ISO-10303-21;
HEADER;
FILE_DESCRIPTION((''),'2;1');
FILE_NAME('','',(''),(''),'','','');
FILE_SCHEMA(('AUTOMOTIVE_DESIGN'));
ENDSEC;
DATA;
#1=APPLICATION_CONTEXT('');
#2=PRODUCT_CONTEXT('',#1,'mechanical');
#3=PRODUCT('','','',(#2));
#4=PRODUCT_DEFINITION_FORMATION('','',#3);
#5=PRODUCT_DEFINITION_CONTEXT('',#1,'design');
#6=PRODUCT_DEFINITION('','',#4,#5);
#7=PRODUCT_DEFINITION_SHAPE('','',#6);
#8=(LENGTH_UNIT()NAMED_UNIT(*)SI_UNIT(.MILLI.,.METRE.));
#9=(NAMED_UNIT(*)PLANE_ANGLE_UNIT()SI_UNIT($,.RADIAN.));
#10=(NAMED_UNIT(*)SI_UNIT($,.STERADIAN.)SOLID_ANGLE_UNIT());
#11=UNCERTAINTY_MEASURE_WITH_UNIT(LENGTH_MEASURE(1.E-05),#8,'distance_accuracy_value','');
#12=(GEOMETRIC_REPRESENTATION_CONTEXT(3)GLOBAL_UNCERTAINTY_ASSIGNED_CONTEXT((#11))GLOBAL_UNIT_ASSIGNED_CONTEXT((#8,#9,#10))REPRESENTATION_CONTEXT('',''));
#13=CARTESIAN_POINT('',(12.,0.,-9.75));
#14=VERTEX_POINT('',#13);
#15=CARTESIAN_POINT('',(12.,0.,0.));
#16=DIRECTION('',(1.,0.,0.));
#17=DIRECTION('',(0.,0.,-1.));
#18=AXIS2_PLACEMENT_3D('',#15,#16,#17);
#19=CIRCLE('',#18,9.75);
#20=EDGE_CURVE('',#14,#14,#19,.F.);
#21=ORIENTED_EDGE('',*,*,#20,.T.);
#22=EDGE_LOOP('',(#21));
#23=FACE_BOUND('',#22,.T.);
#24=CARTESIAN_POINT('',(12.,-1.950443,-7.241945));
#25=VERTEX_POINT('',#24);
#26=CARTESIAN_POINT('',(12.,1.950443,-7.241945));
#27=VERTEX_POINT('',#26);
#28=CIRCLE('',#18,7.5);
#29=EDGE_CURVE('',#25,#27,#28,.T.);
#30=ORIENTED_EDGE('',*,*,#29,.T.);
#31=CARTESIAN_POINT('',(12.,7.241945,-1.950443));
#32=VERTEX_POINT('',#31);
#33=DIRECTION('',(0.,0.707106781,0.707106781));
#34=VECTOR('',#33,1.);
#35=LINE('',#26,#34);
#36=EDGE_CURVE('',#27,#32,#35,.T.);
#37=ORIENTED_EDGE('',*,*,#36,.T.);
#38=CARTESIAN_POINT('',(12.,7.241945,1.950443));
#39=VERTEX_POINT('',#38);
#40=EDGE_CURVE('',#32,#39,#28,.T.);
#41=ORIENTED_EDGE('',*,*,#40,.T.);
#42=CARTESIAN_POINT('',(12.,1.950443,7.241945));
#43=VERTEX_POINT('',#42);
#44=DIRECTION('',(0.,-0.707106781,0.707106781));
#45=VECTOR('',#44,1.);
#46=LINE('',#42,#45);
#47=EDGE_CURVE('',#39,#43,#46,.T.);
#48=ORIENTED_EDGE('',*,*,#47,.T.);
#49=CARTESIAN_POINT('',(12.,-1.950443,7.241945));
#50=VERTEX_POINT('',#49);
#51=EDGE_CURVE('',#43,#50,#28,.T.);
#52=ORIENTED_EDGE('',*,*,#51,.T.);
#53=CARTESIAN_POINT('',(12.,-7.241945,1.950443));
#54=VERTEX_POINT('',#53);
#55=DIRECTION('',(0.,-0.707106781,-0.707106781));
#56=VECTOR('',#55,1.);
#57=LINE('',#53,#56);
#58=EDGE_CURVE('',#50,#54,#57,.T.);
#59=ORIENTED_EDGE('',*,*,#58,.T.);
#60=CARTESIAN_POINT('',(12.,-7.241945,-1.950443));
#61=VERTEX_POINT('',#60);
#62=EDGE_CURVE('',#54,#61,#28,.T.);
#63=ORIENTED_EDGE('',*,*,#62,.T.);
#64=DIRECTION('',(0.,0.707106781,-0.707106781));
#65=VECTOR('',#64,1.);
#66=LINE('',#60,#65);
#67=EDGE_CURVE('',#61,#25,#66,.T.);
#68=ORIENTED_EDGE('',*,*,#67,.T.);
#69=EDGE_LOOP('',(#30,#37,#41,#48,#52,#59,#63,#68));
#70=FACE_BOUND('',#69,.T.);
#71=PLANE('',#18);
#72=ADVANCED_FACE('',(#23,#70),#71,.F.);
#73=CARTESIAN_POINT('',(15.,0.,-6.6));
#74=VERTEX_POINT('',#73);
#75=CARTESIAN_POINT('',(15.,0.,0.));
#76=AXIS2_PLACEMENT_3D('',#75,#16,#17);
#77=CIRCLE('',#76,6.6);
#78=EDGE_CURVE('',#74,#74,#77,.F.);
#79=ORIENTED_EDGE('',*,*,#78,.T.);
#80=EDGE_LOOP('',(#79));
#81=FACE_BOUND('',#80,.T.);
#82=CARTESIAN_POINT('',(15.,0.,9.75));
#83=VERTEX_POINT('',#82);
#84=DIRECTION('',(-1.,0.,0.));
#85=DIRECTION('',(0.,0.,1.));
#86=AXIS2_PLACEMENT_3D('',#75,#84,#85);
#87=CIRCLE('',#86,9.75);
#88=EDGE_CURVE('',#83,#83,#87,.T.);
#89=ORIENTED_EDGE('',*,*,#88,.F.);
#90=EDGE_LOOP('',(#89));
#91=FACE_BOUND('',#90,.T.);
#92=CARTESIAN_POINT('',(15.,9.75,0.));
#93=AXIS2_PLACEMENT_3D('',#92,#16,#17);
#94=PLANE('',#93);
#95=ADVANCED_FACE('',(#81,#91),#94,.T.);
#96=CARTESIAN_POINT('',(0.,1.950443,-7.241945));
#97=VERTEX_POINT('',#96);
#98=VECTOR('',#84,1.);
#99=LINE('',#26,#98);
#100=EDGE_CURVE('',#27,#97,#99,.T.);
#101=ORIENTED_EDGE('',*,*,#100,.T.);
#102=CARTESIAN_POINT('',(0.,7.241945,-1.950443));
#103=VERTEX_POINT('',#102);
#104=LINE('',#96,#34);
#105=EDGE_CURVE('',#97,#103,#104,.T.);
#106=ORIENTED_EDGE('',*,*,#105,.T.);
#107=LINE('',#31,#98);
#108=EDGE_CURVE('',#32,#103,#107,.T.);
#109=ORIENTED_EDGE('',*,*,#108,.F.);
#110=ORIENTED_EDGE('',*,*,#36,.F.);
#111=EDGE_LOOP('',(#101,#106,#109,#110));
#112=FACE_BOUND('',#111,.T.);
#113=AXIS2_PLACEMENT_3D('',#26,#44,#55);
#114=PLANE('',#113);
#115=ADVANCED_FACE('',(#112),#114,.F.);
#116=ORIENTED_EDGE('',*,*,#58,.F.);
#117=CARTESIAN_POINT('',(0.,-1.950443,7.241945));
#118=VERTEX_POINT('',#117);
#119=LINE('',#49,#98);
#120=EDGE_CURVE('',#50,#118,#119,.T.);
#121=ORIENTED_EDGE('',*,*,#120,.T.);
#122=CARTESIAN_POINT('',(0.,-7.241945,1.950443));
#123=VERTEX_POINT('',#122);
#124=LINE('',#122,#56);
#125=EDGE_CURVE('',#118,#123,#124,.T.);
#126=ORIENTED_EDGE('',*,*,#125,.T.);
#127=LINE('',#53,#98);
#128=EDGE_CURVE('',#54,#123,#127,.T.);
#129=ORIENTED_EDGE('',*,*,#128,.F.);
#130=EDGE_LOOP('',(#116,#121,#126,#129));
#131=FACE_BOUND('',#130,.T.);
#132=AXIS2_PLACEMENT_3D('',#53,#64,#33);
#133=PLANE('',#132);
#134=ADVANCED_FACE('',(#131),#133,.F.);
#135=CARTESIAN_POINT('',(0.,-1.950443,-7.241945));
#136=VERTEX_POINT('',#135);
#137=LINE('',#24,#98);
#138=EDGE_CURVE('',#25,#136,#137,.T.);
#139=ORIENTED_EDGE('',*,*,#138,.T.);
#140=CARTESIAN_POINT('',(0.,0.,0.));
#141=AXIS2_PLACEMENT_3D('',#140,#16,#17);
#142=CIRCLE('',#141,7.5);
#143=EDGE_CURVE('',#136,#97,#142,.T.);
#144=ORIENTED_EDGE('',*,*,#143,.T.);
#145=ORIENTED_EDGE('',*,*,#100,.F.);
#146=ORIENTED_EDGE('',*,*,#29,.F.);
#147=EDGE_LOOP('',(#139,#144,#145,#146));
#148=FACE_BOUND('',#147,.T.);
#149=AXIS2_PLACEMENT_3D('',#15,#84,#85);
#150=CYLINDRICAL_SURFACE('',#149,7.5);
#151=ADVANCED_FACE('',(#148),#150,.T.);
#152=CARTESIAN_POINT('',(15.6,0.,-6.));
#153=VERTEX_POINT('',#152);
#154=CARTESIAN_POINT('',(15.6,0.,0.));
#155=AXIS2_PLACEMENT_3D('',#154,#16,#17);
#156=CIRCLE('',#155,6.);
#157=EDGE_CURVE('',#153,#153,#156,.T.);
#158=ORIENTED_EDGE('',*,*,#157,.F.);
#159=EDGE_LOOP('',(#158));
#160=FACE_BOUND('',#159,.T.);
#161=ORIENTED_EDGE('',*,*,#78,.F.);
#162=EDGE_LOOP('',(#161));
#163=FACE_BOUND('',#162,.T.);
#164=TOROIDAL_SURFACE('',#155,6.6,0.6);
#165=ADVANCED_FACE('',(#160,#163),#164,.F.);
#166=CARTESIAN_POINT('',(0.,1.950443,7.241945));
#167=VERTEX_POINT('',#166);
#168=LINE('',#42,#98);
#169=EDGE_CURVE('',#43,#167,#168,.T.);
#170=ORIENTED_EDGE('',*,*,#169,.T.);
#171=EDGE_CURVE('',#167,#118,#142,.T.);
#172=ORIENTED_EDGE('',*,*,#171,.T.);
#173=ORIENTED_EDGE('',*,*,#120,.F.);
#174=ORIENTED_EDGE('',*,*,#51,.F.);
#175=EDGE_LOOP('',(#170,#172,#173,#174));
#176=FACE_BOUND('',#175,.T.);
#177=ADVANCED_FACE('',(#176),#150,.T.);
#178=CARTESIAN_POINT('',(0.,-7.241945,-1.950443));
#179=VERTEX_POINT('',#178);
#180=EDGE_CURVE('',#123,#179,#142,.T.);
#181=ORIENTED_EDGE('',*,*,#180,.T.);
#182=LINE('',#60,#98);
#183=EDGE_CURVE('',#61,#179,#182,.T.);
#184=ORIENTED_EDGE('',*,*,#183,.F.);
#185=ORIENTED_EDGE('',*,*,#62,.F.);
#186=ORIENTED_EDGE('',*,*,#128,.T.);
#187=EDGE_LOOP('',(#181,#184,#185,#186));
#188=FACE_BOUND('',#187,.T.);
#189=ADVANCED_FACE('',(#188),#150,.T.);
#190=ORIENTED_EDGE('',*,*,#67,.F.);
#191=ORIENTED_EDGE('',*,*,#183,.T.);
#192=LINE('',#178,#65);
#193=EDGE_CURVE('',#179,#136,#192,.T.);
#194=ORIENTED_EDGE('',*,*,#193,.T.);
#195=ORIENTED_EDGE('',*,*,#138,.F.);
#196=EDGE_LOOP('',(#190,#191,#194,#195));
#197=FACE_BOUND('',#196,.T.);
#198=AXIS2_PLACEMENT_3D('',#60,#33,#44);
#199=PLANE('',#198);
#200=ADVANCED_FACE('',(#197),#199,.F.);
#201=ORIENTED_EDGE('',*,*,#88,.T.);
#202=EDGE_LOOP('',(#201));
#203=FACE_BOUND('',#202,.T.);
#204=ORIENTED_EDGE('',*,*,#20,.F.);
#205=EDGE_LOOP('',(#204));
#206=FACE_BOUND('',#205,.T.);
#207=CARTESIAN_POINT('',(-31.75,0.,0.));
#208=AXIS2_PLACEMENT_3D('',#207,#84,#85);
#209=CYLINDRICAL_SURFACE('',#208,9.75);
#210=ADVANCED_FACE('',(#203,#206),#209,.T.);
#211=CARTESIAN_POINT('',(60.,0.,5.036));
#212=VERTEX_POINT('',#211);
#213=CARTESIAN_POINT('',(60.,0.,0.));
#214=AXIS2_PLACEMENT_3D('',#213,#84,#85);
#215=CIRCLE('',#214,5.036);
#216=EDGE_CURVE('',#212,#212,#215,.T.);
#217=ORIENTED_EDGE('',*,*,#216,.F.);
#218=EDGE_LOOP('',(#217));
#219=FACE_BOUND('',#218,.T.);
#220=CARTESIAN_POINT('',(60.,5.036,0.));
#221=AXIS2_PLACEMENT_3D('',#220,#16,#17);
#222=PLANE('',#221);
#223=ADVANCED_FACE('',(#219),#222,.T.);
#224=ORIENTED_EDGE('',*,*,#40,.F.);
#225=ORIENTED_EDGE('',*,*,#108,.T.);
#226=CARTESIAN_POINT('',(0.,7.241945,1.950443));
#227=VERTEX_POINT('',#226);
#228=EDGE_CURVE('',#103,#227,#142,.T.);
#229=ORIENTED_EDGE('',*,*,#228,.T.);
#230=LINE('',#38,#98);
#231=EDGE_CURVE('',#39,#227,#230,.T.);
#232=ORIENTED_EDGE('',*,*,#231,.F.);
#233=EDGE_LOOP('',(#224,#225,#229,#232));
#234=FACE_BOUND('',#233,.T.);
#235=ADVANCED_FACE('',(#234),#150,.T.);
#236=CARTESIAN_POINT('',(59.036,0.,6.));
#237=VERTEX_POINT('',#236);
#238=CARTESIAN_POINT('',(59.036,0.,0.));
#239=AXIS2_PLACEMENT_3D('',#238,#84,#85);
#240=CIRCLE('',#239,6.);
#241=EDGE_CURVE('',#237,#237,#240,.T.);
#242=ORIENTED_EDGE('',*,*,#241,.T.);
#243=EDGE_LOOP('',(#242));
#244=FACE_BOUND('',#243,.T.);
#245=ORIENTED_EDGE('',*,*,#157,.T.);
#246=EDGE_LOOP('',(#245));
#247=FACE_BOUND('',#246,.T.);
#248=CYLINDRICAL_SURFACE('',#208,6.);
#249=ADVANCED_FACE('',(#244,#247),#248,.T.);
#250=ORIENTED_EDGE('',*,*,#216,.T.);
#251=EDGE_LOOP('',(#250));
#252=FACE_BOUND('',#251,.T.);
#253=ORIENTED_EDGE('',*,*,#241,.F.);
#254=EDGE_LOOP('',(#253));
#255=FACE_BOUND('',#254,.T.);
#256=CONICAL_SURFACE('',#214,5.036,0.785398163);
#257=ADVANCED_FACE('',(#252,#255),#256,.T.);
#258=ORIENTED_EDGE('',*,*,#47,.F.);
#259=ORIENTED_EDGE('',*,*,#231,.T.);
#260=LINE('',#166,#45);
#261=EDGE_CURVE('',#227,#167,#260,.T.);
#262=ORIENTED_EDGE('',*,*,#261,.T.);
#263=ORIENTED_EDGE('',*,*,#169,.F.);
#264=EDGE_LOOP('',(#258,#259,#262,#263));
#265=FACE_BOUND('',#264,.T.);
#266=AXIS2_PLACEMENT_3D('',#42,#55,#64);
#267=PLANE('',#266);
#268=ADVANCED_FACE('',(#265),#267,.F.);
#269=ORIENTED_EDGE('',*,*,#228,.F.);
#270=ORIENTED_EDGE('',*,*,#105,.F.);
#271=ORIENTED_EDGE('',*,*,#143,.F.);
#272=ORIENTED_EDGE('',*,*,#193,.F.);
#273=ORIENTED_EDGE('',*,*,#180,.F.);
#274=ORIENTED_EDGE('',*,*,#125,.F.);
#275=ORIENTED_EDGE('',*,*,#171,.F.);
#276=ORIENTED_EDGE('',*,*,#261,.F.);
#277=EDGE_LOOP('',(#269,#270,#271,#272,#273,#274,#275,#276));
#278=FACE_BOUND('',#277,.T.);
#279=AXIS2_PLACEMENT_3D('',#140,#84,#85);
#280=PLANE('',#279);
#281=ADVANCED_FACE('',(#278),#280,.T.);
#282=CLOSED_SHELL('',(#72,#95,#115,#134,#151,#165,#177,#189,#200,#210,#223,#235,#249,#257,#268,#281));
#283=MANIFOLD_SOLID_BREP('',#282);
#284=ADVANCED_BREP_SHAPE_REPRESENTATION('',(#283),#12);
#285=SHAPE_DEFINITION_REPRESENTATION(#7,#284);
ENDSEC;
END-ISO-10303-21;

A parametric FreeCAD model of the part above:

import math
import FreeCAD as App
import Part
import Sketcher

V = App.Vector
Q = App.Units.Quantity


def edges_at(feature, points):
    """Names of the edges that pass closest to the given points."""
    edges = feature.Shape.Edges
    near = lambda p: min(range(len(edges)), key=lambda i: edges[i].distToShape(Part.Vertex(*p))[0])
    return sorted({f"Edge{near(p) + 1}" for p in points})

doc = App.newDocument("Part")
params = doc.addObject("Spreadsheet::Sheet", "Params")
for row, (alias, value) in enumerate([
    ("sketch1_width", "60 mm"),
    ("sketch1_width2", "15 mm"),
    ("sketch1_height", "9.75 mm"),
    ("revolution_angle", "360 deg"),
    ("fillet_radius", "0.6 mm"),
    ("fillet2_radius", "0.6 mm"),
    ("sketch2_radius", "7.5 mm"),
    ("pocket1_length", "12 mm"),
], start=1):
    params.set(f"A{row}", alias)
    params.set(f"B{row}", "=" + value)
    params.setAlias(f"B{row}", alias)

body = doc.addObject("PartDesign::Body", "Body")

sketch1 = body.newObject("Sketcher::SketchObject", "Sketch")
sketch1.AttachmentSupport = (doc.getObject("XY_Plane"), [""])
sketch1.MapMode = "FlatFace"
sketch1.addGeometry([
    Part.LineSegment(V(0, 9.75, 0), V(0, 0, 0)),
    Part.LineSegment(V(0, 0, 0), V(60, 0, 0)),
    Part.LineSegment(V(60, 0, 0), V(60, 5.036, 0)),
    Part.LineSegment(V(60, 5.036, 0), V(59.036, 6, 0)),
    Part.LineSegment(V(59.036, 6, 0), V(15, 6, 0)),
    Part.LineSegment(V(15, 6, 0), V(15, 9.75, 0)),
    Part.LineSegment(V(15, 9.75, 0), V(0, 9.75, 0)),
], False)
sketch1.addConstraint([
    Sketcher.Constraint("Coincident", 0, 2, 1, 1),
    Sketcher.Constraint("Coincident", 1, 2, 2, 1),
    Sketcher.Constraint("Coincident", 2, 2, 3, 1),
    Sketcher.Constraint("Coincident", 3, 2, 4, 1),
    Sketcher.Constraint("Coincident", 4, 2, 5, 1),
    Sketcher.Constraint("Coincident", 5, 2, 6, 1),
    Sketcher.Constraint("Coincident", 6, 2, 0, 1),
    Sketcher.Constraint("Vertical", 0),
    Sketcher.Constraint("Horizontal", 1),
    Sketcher.Constraint("Vertical", 2),
    Sketcher.Constraint("Horizontal", 4),
    Sketcher.Constraint("Vertical", 5),
    Sketcher.Constraint("Horizontal", 6),
    Sketcher.Constraint("Coincident", 0, 2, -1, 1),
    Sketcher.Constraint("DistanceX", 1, 1, 1, 2, Q("60 mm")),
    Sketcher.Constraint("DistanceX", 6, 2, 6, 1, Q("15 mm")),
    Sketcher.Constraint("Angle", 3, Q("135 deg")),
    Sketcher.Constraint("DistanceY", -1, 1, 3, 2, Q("6 mm")),
    Sketcher.Constraint("DistanceY", 0, 2, 0, 1, Q("9.75 mm")),
    Sketcher.Constraint("DistanceX", 4, 2, 4, 1, Q("44.036 mm")),
])
sketch1.setExpression("Constraints[14]", "Params.sketch1_width")
sketch1.setExpression("Constraints[15]", "Params.sketch1_width2")
sketch1.setExpression("Constraints[18]", "Params.sketch1_height")
revolution = body.newObject("PartDesign::Revolution", "Revolution")
revolution.Profile = sketch1
revolution.ReferenceAxis = (sketch1, ["H_Axis"])
revolution.setExpression("Angle", "Params.revolution_angle")
doc.recompute()

fillet = body.newObject("PartDesign::Fillet", "Fillet")
fillet.Base = (revolution, edges_at(revolution, [(15, 0, -6)]))
fillet.setExpression("Radius", "Params.fillet_radius")
doc.recompute()

fillet2 = body.newObject("PartDesign::Fillet", "Fillet001")
fillet2.Base = (fillet, edges_at(fillet, [(0, 0, -9.75)]))
fillet2.setExpression("Radius", "Params.fillet2_radius")

sketch2 = body.newObject("Sketcher::SketchObject", "Sketch001")
sketch2.AttachmentSupport = (doc.getObject("YZ_Plane"), [""])
sketch2.MapMode = "FlatFace"
sketch2.addGeometry([
    Part.LineSegment(V(17.353, 17.353, 0), V(-17.353, 17.353, 0)),
    Part.LineSegment(V(-17.353, 17.353, 0), V(-17.353, -17.353, 0)),
    Part.LineSegment(V(-17.353, -17.353, 0), V(17.353, -17.353, 0)),
    Part.LineSegment(V(17.353, -17.353, 0), V(17.353, 17.353, 0)),
    Part.LineSegment(V(-1.950443, -7.241945, 0), V(-7.241945, -1.950443, 0)),
    Part.ArcOfCircle(Part.Circle(V(0, 0, 0), V(0, 0, 1), 7.5), math.radians(164.926435), math.radians(195.073565)),
    Part.LineSegment(V(-7.241945, 1.950443, 0), V(-1.950443, 7.241945, 0)),
    Part.ArcOfCircle(Part.Circle(V(0, 0, 0), V(0, 0, 1), 7.5), math.radians(74.926435), math.radians(105.073565)),
    Part.LineSegment(V(1.950443, 7.241945, 0), V(7.241945, 1.950443, 0)),
    Part.ArcOfCircle(Part.Circle(V(0, 0, 0), V(0, 0, 1), 7.5), math.radians(-15.073565), math.radians(15.073565)),
    Part.LineSegment(V(7.241945, -1.950443, 0), V(1.950443, -7.241945, 0)),
    Part.ArcOfCircle(Part.Circle(V(0, 0, 0), V(0, 0, 1), 7.5), math.radians(-105.073565), math.radians(-74.926435)),
], False)
sketch2.addConstraint([
    Sketcher.Constraint("Coincident", 0, 2, 1, 1),
    Sketcher.Constraint("Coincident", 1, 2, 2, 1),
    Sketcher.Constraint("Coincident", 2, 2, 3, 1),
    Sketcher.Constraint("Coincident", 3, 2, 0, 1),
    Sketcher.Constraint("Coincident", 4, 2, 5, 2),
    Sketcher.Constraint("Coincident", 5, 1, 6, 1),
    Sketcher.Constraint("Coincident", 6, 2, 7, 2),
    Sketcher.Constraint("Coincident", 7, 1, 8, 1),
    Sketcher.Constraint("Coincident", 8, 2, 9, 2),
    Sketcher.Constraint("Coincident", 9, 1, 10, 1),
    Sketcher.Constraint("Coincident", 10, 2, 11, 2),
    Sketcher.Constraint("Coincident", 11, 1, 4, 1),
    Sketcher.Constraint("Horizontal", 0),
    Sketcher.Constraint("Vertical", 1),
    Sketcher.Constraint("Horizontal", 2),
    Sketcher.Constraint("Vertical", 3),
    Sketcher.Constraint("Coincident", 5, 3, -1, 1),
    Sketcher.Constraint("Coincident", 7, 3, -1, 1),
    Sketcher.Constraint("Coincident", 9, 3, -1, 1),
    Sketcher.Constraint("Coincident", 11, 3, -1, 1),
    Sketcher.Constraint("Equal", 5, 7),
    Sketcher.Constraint("Equal", 7, 9),
    Sketcher.Constraint("Equal", 9, 11),
    Sketcher.Constraint("Symmetric", 0, 2, 2, 2, -1, 1),
    Sketcher.Constraint("Perpendicular", 4, 6),
    Sketcher.Constraint("Perpendicular", 6, 8),
    Sketcher.Constraint("Perpendicular", 8, 10),
    Sketcher.Constraint("Horizontal", 6, 2, 7, 1),
    Sketcher.Constraint("Horizontal", 5, 1, 8, 2),
    Sketcher.Constraint("Horizontal", 4, 2, 9, 1),
    Sketcher.Constraint("Vertical", 4, 2, 5, 1),
    Sketcher.Constraint("Equal", 2, 1),
    Sketcher.Constraint("Radius", 5, Q("7.5 mm")),
    Sketcher.Constraint("DistanceX", 0, 2, 0, 1, Q("34.706 mm")),
    Sketcher.Constraint("Distance", 4, Q("7.483315 mm")),
])
sketch2.setExpression("Constraints[32]", "Params.sketch2_radius")
pocket1 = body.newObject("PartDesign::Pocket", "Pocket")
pocket1.Profile = sketch2
pocket1.setExpression("Length", "Params.pocket1_length")
pocket1.Reversed = True

doc.recompute()
